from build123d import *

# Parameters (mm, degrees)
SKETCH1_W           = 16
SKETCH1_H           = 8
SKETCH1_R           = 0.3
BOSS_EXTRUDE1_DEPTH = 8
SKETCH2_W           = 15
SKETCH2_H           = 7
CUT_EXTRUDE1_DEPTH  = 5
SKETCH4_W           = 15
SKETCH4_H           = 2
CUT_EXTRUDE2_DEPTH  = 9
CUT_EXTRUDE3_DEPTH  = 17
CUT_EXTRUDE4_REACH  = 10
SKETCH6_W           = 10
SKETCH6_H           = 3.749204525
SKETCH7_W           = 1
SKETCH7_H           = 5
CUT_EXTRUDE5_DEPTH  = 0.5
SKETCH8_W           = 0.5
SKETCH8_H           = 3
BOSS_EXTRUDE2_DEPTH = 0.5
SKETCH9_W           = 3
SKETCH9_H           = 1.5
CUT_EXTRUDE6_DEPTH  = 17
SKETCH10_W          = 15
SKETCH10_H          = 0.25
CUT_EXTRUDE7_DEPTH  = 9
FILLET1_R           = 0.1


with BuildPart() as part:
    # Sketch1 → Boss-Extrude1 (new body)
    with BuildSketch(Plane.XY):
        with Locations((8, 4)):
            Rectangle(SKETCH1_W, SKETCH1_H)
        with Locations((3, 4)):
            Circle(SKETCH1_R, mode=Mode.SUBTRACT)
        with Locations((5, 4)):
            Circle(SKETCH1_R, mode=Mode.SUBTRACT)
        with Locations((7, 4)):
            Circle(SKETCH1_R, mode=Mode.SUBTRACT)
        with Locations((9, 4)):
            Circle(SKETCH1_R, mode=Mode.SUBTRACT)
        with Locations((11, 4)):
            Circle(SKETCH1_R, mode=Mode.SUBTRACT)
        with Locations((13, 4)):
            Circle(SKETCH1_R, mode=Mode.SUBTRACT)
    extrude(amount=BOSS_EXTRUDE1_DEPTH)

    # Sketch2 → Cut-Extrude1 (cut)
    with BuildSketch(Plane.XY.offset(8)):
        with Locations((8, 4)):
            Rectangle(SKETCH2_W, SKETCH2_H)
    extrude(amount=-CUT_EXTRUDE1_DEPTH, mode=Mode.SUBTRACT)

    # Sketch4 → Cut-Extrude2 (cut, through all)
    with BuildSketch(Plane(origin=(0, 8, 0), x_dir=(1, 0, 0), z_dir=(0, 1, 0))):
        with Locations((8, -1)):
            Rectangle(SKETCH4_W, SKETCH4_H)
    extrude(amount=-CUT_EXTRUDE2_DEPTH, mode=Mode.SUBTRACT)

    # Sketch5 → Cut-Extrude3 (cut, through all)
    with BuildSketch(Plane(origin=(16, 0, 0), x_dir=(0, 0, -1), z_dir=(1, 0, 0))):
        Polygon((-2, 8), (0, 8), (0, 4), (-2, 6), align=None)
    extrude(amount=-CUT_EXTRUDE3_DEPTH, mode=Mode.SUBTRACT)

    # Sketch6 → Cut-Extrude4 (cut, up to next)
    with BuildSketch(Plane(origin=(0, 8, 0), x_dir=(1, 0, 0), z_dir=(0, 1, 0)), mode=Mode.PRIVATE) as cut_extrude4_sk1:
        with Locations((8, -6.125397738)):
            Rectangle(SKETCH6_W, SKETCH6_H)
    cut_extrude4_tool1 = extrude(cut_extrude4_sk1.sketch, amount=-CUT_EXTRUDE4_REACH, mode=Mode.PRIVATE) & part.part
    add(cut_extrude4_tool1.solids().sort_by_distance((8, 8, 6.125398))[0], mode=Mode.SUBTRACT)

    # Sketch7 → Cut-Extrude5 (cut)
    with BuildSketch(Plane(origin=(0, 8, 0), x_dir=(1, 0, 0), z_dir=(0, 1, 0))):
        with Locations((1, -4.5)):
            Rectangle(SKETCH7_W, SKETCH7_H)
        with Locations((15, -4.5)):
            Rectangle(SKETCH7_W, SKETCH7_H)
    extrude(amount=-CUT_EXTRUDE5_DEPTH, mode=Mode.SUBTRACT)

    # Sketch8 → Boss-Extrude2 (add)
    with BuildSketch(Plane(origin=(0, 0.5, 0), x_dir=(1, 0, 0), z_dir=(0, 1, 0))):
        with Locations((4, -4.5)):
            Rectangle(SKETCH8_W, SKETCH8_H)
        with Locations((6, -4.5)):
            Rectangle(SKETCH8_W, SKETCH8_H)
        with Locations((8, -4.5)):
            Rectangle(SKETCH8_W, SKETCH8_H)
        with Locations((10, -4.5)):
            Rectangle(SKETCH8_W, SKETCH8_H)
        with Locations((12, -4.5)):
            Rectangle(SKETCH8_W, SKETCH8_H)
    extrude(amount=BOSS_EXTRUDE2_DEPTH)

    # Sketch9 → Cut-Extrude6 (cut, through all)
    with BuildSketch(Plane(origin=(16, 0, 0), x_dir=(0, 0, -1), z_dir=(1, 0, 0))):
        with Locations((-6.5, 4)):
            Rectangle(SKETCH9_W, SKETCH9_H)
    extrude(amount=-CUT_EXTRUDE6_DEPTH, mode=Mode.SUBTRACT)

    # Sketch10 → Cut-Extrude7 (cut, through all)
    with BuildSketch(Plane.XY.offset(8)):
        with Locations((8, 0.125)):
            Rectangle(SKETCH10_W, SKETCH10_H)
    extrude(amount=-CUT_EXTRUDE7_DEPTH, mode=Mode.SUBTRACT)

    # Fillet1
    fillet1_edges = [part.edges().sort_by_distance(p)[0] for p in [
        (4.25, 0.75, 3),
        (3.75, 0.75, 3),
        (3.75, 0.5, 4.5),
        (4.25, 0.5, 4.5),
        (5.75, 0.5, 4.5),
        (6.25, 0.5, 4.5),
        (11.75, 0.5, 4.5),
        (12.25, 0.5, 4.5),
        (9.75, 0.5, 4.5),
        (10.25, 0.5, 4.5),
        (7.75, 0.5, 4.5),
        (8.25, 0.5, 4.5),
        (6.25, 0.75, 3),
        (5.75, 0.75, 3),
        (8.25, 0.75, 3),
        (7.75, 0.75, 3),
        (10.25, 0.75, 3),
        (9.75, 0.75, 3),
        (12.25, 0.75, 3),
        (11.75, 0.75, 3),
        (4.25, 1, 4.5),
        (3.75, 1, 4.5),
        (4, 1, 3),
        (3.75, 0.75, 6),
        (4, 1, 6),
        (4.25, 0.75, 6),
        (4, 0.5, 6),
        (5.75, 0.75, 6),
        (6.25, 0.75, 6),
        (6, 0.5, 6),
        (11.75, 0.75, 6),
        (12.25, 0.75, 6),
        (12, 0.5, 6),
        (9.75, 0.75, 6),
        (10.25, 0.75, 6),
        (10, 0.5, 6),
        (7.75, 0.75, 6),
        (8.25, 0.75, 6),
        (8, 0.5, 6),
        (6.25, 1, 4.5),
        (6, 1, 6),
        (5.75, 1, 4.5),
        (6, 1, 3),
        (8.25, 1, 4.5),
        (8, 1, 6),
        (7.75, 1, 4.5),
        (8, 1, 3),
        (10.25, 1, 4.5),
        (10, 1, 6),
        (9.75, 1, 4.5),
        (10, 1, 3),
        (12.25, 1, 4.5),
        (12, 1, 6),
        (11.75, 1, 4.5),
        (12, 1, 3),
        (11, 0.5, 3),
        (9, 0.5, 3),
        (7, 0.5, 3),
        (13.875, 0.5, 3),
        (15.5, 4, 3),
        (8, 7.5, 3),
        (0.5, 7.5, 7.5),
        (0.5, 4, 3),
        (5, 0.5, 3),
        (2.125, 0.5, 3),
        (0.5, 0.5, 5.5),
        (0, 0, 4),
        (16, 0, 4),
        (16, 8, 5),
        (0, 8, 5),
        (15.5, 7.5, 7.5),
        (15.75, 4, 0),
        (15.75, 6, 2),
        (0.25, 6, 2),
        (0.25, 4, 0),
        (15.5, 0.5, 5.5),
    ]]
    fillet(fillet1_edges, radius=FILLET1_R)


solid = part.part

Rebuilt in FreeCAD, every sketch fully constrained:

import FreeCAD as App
import Part
import Sketcher

V = App.Vector
Q = App.Units.Quantity


def edges_at(feature, points):
    """Names of the edges that pass closest to the given points."""
    edges = feature.Shape.Edges
    near = lambda p: min(range(len(edges)), key=lambda i: edges[i].distToShape(Part.Vertex(*p))[0])
    return sorted({f"Edge{near(p) + 1}" for p in points})

doc = App.newDocument("Part")
body = doc.addObject("PartDesign::Body", "Body")

# Sketch on XY plane
sketch1 = body.newObject("Sketcher::SketchObject", "Sketch")
sketch1.AttachmentSupport = (doc.getObject("XY_Plane"), [""])
sketch1.MapMode = "FlatFace"
sketch1.addGeometry([
    Part.LineSegment(V(0, 8, 0), V(0, 0, 0)),  # 0
    Part.LineSegment(V(0, 0, 0), V(16, 0, 0)),  # 1
    Part.LineSegment(V(16, 0, 0), V(16, 8, 0)),  # 2
    Part.LineSegment(V(16, 8, 0), V(0, 8, 0)),  # 3
    Part.Circle(V(3, 4, 0), V(0, 0, 1), 0.3),  # 4
    Part.Circle(V(5, 4, 0), V(0, 0, 1), 0.3),  # 5
    Part.Circle(V(7, 4, 0), V(0, 0, 1), 0.3),  # 6
    Part.Circle(V(9, 4, 0), V(0, 0, 1), 0.3),  # 7
    Part.Circle(V(11, 4, 0), V(0, 0, 1), 0.3),  # 8
    Part.Circle(V(13, 4, 0), V(0, 0, 1), 0.3),  # 9
], False)
sketch1.addConstraint([
    Sketcher.Constraint("Coincident", 0, 2, 1, 1),
    Sketcher.Constraint("Coincident", 1, 2, 2, 1),
    Sketcher.Constraint("Coincident", 2, 2, 3, 1),
    Sketcher.Constraint("Coincident", 3, 2, 0, 1),
    Sketcher.Constraint("Vertical", 0),
    Sketcher.Constraint("Horizontal", 1),
    Sketcher.Constraint("Vertical", 2),
    Sketcher.Constraint("Horizontal", 3),
    Sketcher.Constraint("Coincident", 0, 2, -1, 1),
    Sketcher.Constraint("Equal", 4, 5),
    Sketcher.Constraint("Equal", 5, 6),
    Sketcher.Constraint("Equal", 6, 7),
    Sketcher.Constraint("Equal", 7, 8),
    Sketcher.Constraint("Equal", 8, 9),
    Sketcher.Constraint("Horizontal", 4, 3, 5, 3),
    Sketcher.Constraint("Horizontal", 5, 3, 6, 3),
    Sketcher.Constraint("Horizontal", 6, 3, 7, 3),
    Sketcher.Constraint("Horizontal", 7, 3, 8, 3),
    Sketcher.Constraint("Horizontal", 8, 3, 9, 3),
    Sketcher.Constraint("Diameter", 4, Q("0.6 mm")),
    Sketcher.Constraint("DistanceX", 1, 1, 1, 2, Q("16 mm")),
    Sketcher.Constraint("DistanceY", 0, 2, 0, 1, Q("8 mm")),
    Sketcher.Constraint("DistanceX", -1, 1, 4, 3, Q("3 mm")),
    Sketcher.Constraint("DistanceY", -1, 1, 4, 3, Q("4 mm")),
    Sketcher.Constraint("DistanceX", -1, 1, 5, 3, Q("5 mm")),
    Sketcher.Constraint("DistanceX", -1, 1, 6, 3, Q("7 mm")),
    Sketcher.Constraint("DistanceX", -1, 1, 7, 3, Q("9 mm")),
    Sketcher.Constraint("DistanceX", -1, 1, 8, 3, Q("11 mm")),
    Sketcher.Constraint("DistanceX", -1, 1, 9, 3, Q("13 mm")),
])
pad1 = body.newObject("PartDesign::Pad", "Pad")
pad1.Profile = sketch1
pad1.Length = 8

# Sketch on XY plane
sketch2 = body.newObject("Sketcher::SketchObject", "Sketch001")
sketch2.AttachmentSupport = (doc.getObject("XY_Plane"), [""])
sketch2.MapMode = "FlatFace"
sketch2.AttachmentOffset = App.Placement(V(0, 0, 8), App.Rotation())
sketch2.addGeometry([
    Part.LineSegment(V(0, 8, 0), V(0, 0, 0)),
    Part.LineSegment(V(0, 0, 0), V(16, 0, 0)),
    Part.LineSegment(V(16, 0, 0), V(16, 8, 0)),
    Part.LineSegment(V(16, 8, 0), V(0, 8, 0)),
], False)
sketch2.addConstraint([
    Sketcher.Constraint("Coincident", 0, 2, 1, 1),
    Sketcher.Constraint("Coincident", 1, 2, 2, 1),
    Sketcher.Constraint("Coincident", 2, 2, 3, 1),
    Sketcher.Constraint("Coincident", 3, 2, 0, 1),
    Sketcher.Constraint("Vertical", 0),
    Sketcher.Constraint("Horizontal", 1),
    Sketcher.Constraint("Vertical", 2),
    Sketcher.Constraint("Horizontal", 3),
    Sketcher.Constraint("DistanceX", 1, 1, 1, 2, Q("15 mm")),
    Sketcher.Constraint("DistanceY", 0, 2, 0, 1, Q("7 mm")),
    Sketcher.Constraint("DistanceX", -1, 1, 0, 2, Q("0.5 mm")),
    Sketcher.Constraint("DistanceY", -1, 1, 0, 2, Q("0.5 mm")),
])
pocket1 = body.newObject("PartDesign::Pocket", "Pocket")
pocket1.Profile = sketch2
pocket1.Length = 5

# Sketch on XZ plane
sketch3 = body.newObject("Sketcher::SketchObject", "Sketch002")
sketch3.AttachmentSupport = (doc.getObject("XZ_Plane"), [""])
sketch3.MapMode = "FlatFace"
sketch3.AttachmentOffset = App.Placement(V(0, 0, -8), App.Rotation())
sketch3.addGeometry([
    Part.LineSegment(V(0.5, 0, 0), V(0.5, 2, 0)),
    Part.LineSegment(V(0.5, 2, 0), V(15.5, 2, 0)),
    Part.LineSegment(V(15.5, 2, 0), V(15.5, 0, 0)),
    Part.LineSegment(V(15.5, 0, 0), V(0.5, 0, 0)),
], False)
sketch3.addConstraint([
    Sketcher.Constraint("Coincident", 0, 2, 1, 1),
    Sketcher.Constraint("Coincident", 1, 2, 2, 1),
    Sketcher.Constraint("Coincident", 2, 2, 3, 1),
    Sketcher.Constraint("Coincident", 3, 2, 0, 1),
    Sketcher.Constraint("Vertical", 0),
    Sketcher.Constraint("Horizontal", 1),
    Sketcher.Constraint("Vertical", 2),
    Sketcher.Constraint("Horizontal", 3),
    Sketcher.Constraint("PointOnObject", 2, 2, -1),
    Sketcher.Constraint("DistanceX", 1, 1, 1, 2, Q("15 mm")),
    Sketcher.Constraint("DistanceY", 0, 1, 0, 2, Q("2 mm")),
    Sketcher.Constraint("DistanceX", -1, 1, 0, 2, Q("0.5 mm")),
])
pocket2 = body.newObject("PartDesign::Pocket", "Pocket001")
pocket2.Profile = sketch3
pocket2.Type = "ThroughAll"
pocket2.Reversed = True

# Sketch on YZ plane
sketch4 = body.newObject("Sketcher::SketchObject", "Sketch003")
sketch4.AttachmentSupport = (doc.getObject("YZ_Plane"), [""])
sketch4.MapMode = "FlatFace"
sketch4.AttachmentOffset = App.Placement(V(0, 0, 16), App.Rotation())
sketch4.addGeometry([
    Part.LineSegment(V(8, 0, 0), V(8, 2, 0)),
    Part.LineSegment(V(8, 2, 0), V(6, 2, 0)),
    Part.LineSegment(V(6, 2, 0), V(4, 0, 0)),
    Part.LineSegment(V(4, 0, 0), V(8, 0, 0)),
], False)
sketch4.addConstraint([
    Sketcher.Constraint("Coincident", 0, 2, 1, 1),
    Sketcher.Constraint("Coincident", 1, 2, 2, 1),
    Sketcher.Constraint("Coincident", 2, 2, 3, 1),
    Sketcher.Constraint("Coincident", 3, 2, 0, 1),
    Sketcher.Constraint("Vertical", 0),
    Sketcher.Constraint("Horizontal", 1),
    Sketcher.Constraint("Horizontal", 3),
    Sketcher.Constraint("PointOnObject", 2, 2, -1),
    Sketcher.Constraint("Equal", 1, 0),
    Sketcher.Constraint("DistanceX", 1, 2, 1, 1, Q("2 mm")),
    Sketcher.Constraint("DistanceX", 3, 1, 3, 2, Q("4 mm")),
    Sketcher.Constraint("DistanceX", -1, 1, 0, 2, Q("8 mm")),
])
pocket3 = body.newObject("PartDesign::Pocket", "Pocket002")
pocket3.Profile = sketch4
pocket3.Type = "ThroughAll"

# Sketch on XZ plane
sketch5 = body.newObject("Sketcher::SketchObject", "Sketch004")
sketch5.AttachmentSupport = (doc.getObject("XZ_Plane"), [""])
sketch5.MapMode = "FlatFace"
sketch5.AttachmentOffset = App.Placement(V(0, 0, -8), App.Rotation())
sketch5.addGeometry([
    Part.LineSegment(V(3, 4.3, 0), V(3, 8, 0)),
    Part.LineSegment(V(3, 8, 0), V(13, 8, 0)),
    Part.LineSegment(V(13, 8, 0), V(13, 4.3, 0)),
    Part.LineSegment(V(13, 4.3, 0), V(3, 4.3, 0)),
], False)
sketch5.addConstraint([
    Sketcher.Constraint("Coincident", 0, 2, 1, 1),
    Sketcher.Constraint("Coincident", 1, 2, 2, 1),
    Sketcher.Constraint("Coincident", 2, 2, 3, 1),
    Sketcher.Constraint("Coincident", 3, 2, 0, 1),
    Sketcher.Constraint("Vertical", 0),
    Sketcher.Constraint("Horizontal", 1),
    Sketcher.Constraint("Vertical", 2),
    Sketcher.Constraint("Horizontal", 3),
    Sketcher.Constraint("DistanceX", 1, 1, 1, 2, Q("10 mm")),
    Sketcher.Constraint("DistanceX", -1, 1, 0, 2, Q("3 mm")),
    Sketcher.Constraint("DistanceY", -1, 1, 0, 2, Q("8 mm")),
    Sketcher.Constraint("DistanceY", 0, 1, 0, 2, Q("3.749205 mm")),
])
pocket4 = body.newObject("PartDesign::Pocket", "Pocket003")
pocket4.Profile = sketch5
pocket4.Type = "UpToFirst"
pocket4.Reversed = True

# Sketch on XZ plane
sketch6 = body.newObject("Sketcher::SketchObject", "Sketch005")
sketch6.AttachmentSupport = (doc.getObject("XZ_Plane"), [""])
sketch6.MapMode = "FlatFace"
sketch6.AttachmentOffset = App.Placement(V(0, 0, -8), App.Rotation())
sketch6.addGeometry([
    Part.LineSegment(V(0.5, 2, 0), V(0.5, 7, 0)),  # 0
    Part.LineSegment(V(0.5, 7, 0), V(1.5, 7, 0)),  # 1
    Part.LineSegment(V(1.5, 7, 0), V(1.5, 2, 0)),  # 2
    Part.LineSegment(V(1.5, 2, 0), V(0.5, 2, 0)),  # 3
    Part.LineSegment(V(14.5, 2, 0), V(14.5, 7, 0)),  # 4
    Part.LineSegment(V(14.5, 7, 0), V(15.5, 7, 0)),  # 5
    Part.LineSegment(V(15.5, 7, 0), V(15.5, 2, 0)),  # 6
    Part.LineSegment(V(15.5, 2, 0), V(14.5, 2, 0)),  # 7
], False)
sketch6.addConstraint([
    Sketcher.Constraint("Coincident", 0, 2, 1, 1),
    Sketcher.Constraint("Coincident", 1, 2, 2, 1),
    Sketcher.Constraint("Coincident", 2, 2, 3, 1),
    Sketcher.Constraint("Coincident", 3, 2, 0, 1),
    Sketcher.Constraint("Coincident", 4, 2, 5, 1),
    Sketcher.Constraint("Coincident", 5, 2, 6, 1),
    Sketcher.Constraint("Coincident", 6, 2, 7, 1),
    Sketcher.Constraint("Coincident", 7, 2, 4, 1),
    Sketcher.Constraint("Vertical", 0),
    Sketcher.Constraint("Horizontal", 1),
    Sketcher.Constraint("Vertical", 2),
    Sketcher.Constraint("Horizontal", 3),
    Sketcher.Constraint("Vertical", 4),
    Sketcher.Constraint("Horizontal", 5),
    Sketcher.Constraint("Vertical", 6),
    Sketcher.Constraint("Horizontal", 7),
    Sketcher.Constraint("Horizontal", 1, 2, 4, 2),
    Sketcher.Constraint("Horizontal", 3, 2, 6, 2),
    Sketcher.Constraint("Equal", 3, 5),
    Sketcher.Constraint("DistanceX", 1, 1, 1, 2, Q("1 mm")),
    Sketcher.Constraint("DistanceY", 0, 1, 0, 2, Q("5 mm")),
    Sketcher.Constraint("DistanceY", -1, 1, 0, 2, Q("7 mm")),
    Sketcher.Constraint("DistanceX", 1, 2, 4, 2, Q("13 mm")),
    Sketcher.Constraint("DistanceX", -1, 1, 0, 2, Q("0.5 mm")),
])
pocket5 = body.newObject("PartDesign::Pocket", "Pocket004")
pocket5.Profile = sketch6
pocket5.Length = 0.5
pocket5.Reversed = True

# Sketch on XZ plane
sketch7 = body.newObject("Sketcher::SketchObject", "Sketch006")
sketch7.AttachmentSupport = (doc.getObject("XZ_Plane"), [""])
sketch7.MapMode = "FlatFace"
sketch7.AttachmentOffset = App.Placement(V(0, 0, -0.5), App.Rotation())
sketch7.addGeometry([
    Part.LineSegment(V(3.8, 3, 0), V(3.8, 6, 0)),  # 0
    Part.LineSegment(V(3.8, 6, 0), V(4.2, 6, 0)),  # 1
    Part.LineSegment(V(4.2, 6, 0), V(4.2, 3, 0)),  # 2
    Part.LineSegment(V(4.2, 3, 0), V(3.8, 3, 0)),  # 3
    Part.LineSegment(V(5.8, 3, 0), V(5.8, 6, 0)),  # 4
    Part.LineSegment(V(5.8, 6, 0), V(6.2, 6, 0)),  # 5
    Part.LineSegment(V(6.2, 6, 0), V(6.2, 3, 0)),  # 6
    Part.LineSegment(V(6.2, 3, 0), V(5.8, 3, 0)),  # 7
    Part.LineSegment(V(7.8, 3, 0), V(7.8, 6, 0)),  # 8
    Part.LineSegment(V(7.8, 6, 0), V(8.2, 6, 0)),  # 9
    Part.LineSegment(V(8.2, 6, 0), V(8.2, 3, 0)),  # 10
    Part.LineSegment(V(8.2, 3, 0), V(7.8, 3, 0)),  # 11
    Part.LineSegment(V(9.8, 3, 0), V(9.8, 6, 0)),  # 12
    Part.LineSegment(V(9.8, 6, 0), V(10.2, 6, 0)),  # 13
    Part.LineSegment(V(10.2, 6, 0), V(10.2, 3, 0)),  # 14
    Part.LineSegment(V(10.2, 3, 0), V(9.8, 3, 0)),  # 15
    Part.LineSegment(V(11.8, 3, 0), V(11.8, 6, 0)),  # 16
    Part.LineSegment(V(11.8, 6, 0), V(12.2, 6, 0)),  # 17
    Part.LineSegment(V(12.2, 6, 0), V(12.2, 3, 0)),  # 18
    Part.LineSegment(V(12.2, 3, 0), V(11.8, 3, 0)),  # 19
], False)
sketch7.addConstraint([
    Sketcher.Constraint("Coincident", 0, 2, 1, 1),
    Sketcher.Constraint("Coincident", 1, 2, 2, 1),
    Sketcher.Constraint("Coincident", 2, 2, 3, 1),
    Sketcher.Constraint("Coincident", 3, 2, 0, 1),
    Sketcher.Constraint("Coincident", 4, 2, 5, 1),
    Sketcher.Constraint("Coincident", 5, 2, 6, 1),
    Sketcher.Constraint("Coincident", 6, 2, 7, 1),
    Sketcher.Constraint("Coincident", 7, 2, 4, 1),
    Sketcher.Constraint("Coincident", 8, 2, 9, 1),
    Sketcher.Constraint("Coincident", 9, 2, 10, 1),
    Sketcher.Constraint("Coincident", 10, 2, 11, 1),
    Sketcher.Constraint("Coincident", 11, 2, 8, 1),
    Sketcher.Constraint("Coincident", 12, 2, 13, 1),
    Sketcher.Constraint("Coincident", 13, 2, 14, 1),
    Sketcher.Constraint("Coincident", 14, 2, 15, 1),
    Sketcher.Constraint("Coincident", 15, 2, 12, 1),
    Sketcher.Constraint("Coincident", 16, 2, 17, 1),
    Sketcher.Constraint("Coincident", 17, 2, 18, 1),
    Sketcher.Constraint("Coincident", 18, 2, 19, 1),
    Sketcher.Constraint("Coincident", 19, 2, 16, 1),
    Sketcher.Constraint("Vertical", 0),
    Sketcher.Constraint("Horizontal", 1),
    Sketcher.Constraint("Vertical", 2),
    Sketcher.Constraint("Horizontal", 3),
    Sketcher.Constraint("Vertical", 4),
    Sketcher.Constraint("Horizontal", 5),
    Sketcher.Constraint("Vertical", 6),
    Sketcher.Constraint("Horizontal", 7),
    Sketcher.Constraint("Vertical", 8),
    Sketcher.Constraint("Horizontal", 9),
    Sketcher.Constraint("Vertical", 10),
    Sketcher.Constraint("Horizontal", 11),
    Sketcher.Constraint("Vertical", 12),
    Sketcher.Constraint("Horizontal", 13),
    Sketcher.Constraint("Vertical", 14),
    Sketcher.Constraint("Horizontal", 15),
    Sketcher.Constraint("Vertical", 16),
    Sketcher.Constraint("Horizontal", 17),
    Sketcher.Constraint("Vertical", 18),
    Sketcher.Constraint("Horizontal", 19),
    Sketcher.Constraint("Horizontal", 1, 2, 4, 2),
    Sketcher.Constraint("Horizontal", 3, 2, 6, 2),
    Sketcher.Constraint("Horizontal", 5, 2, 8, 2),
    Sketcher.Constraint("Horizontal", 7, 2, 10, 2),
    Sketcher.Constraint("Horizontal", 9, 2, 12, 2),
    Sketcher.Constraint("Horizontal", 11, 2, 14, 2),
    Sketcher.Constraint("Horizontal", 13, 2, 16, 2),
    Sketcher.Constraint("Horizontal", 15, 2, 18, 2),
    Sketcher.Constraint("Equal", 3, 5),
    Sketcher.Constraint("Equal", 7, 9),
    Sketcher.Constraint("Equal", 11, 13),
    Sketcher.Constraint("Equal", 15, 17),
    Sketcher.Constraint("DistanceY", 0, 1, 0, 2, Q("3 mm")),
    Sketcher.Constraint("DistanceX", 1, 1, 1, 2, Q("0.5 mm")),
    Sketcher.Constraint("DistanceY", -1, 1, 0, 2, Q("6 mm")),
    Sketcher.Constraint("DistanceX", 0, 2, 4, 2, Q("2 mm")),
    Sketcher.Constraint("DistanceX", 4, 2, 8, 2, Q("2 mm")),
    Sketcher.Constraint("DistanceX", 8, 2, 12, 2, Q("2 mm")),
    Sketcher.Constraint("DistanceX", 12, 2, 16, 2, Q("2 mm")),
    Sketcher.Constraint("DistanceX", -1, 1, 0, 2, Q("3.75 mm")),
])
pad2 = body.newObject("PartDesign::Pad", "Pad001")
pad2.Profile = sketch7
pad2.Length = 0.5
pad2.Reversed = True

# Sketch on YZ plane
sketch8 = body.newObject("Sketcher::SketchObject", "Sketch007")
sketch8.AttachmentSupport = (doc.getObject("YZ_Plane"), [""])
sketch8.MapMode = "FlatFace"
sketch8.AttachmentOffset = App.Placement(V(0, 0, 16), App.Rotation())
sketch8.addGeometry([
    Part.LineSegment(V(4.8, 8, 0), V(3.2, 8, 0)),
    Part.LineSegment(V(3.2, 8, 0), V(3.2, 5, 0)),
    Part.LineSegment(V(3.2, 5, 0), V(4.8, 5, 0)),
    Part.LineSegment(V(4.8, 5, 0), V(4.8, 8, 0)),
], False)
sketch8.addConstraint([
    Sketcher.Constraint("Coincident", 0, 2, 1, 1),
    Sketcher.Constraint("Coincident", 1, 2, 2, 1),
    Sketcher.Constraint("Coincident", 2, 2, 3, 1),
    Sketcher.Constraint("Coincident", 3, 2, 0, 1),
    Sketcher.Constraint("Horizontal", 0),
    Sketcher.Constraint("Vertical", 1),
    Sketcher.Constraint("Horizontal", 2),
    Sketcher.Constraint("Vertical", 3),
    Sketcher.Constraint("DistanceY", 1, 2, 1, 1, Q("3 mm")),
    Sketcher.Constraint("DistanceX", 0, 2, 0, 1, Q("1.5 mm")),
    Sketcher.Constraint("DistanceY", -1, 1, 0, 2, Q("8 mm")),
    Sketcher.Constraint("DistanceX", -1, 1, 0, 2, Q("3.25 mm")),
])
pocket6 = body.newObject("PartDesign::Pocket", "Pocket005")
pocket6.Profile = sketch8
pocket6.Type = "ThroughAll"

# Sketch on XY plane
sketch9 = body.newObject("Sketcher::SketchObject", "Sketch008")
sketch9.AttachmentSupport = (doc.getObject("XY_Plane"), [""])
sketch9.MapMode = "FlatFace"
sketch9.AttachmentOffset = App.Placement(V(0, 0, 8), App.Rotation())
sketch9.addGeometry([
    Part.LineSegment(V(0.5, 0.25, 0), V(0.5, 0, 0)),
    Part.LineSegment(V(0.5, 0, 0), V(15.5, 0, 0)),
    Part.LineSegment(V(15.5, 0, 0), V(15.5, 0.25, 0)),
    Part.LineSegment(V(15.5, 0.25, 0), V(0.5, 0.25, 0)),
], False)
sketch9.addConstraint([
    Sketcher.Constraint("Coincident", 0, 2, 1, 1),
    Sketcher.Constraint("Coincident", 1, 2, 2, 1),
    Sketcher.Constraint("Coincident", 2, 2, 3, 1),
    Sketcher.Constraint("Coincident", 3, 2, 0, 1),
    Sketcher.Constraint("Vertical", 0),
    Sketcher.Constraint("Horizontal", 1),
    Sketcher.Constraint("Vertical", 2),
    Sketcher.Constraint("Horizontal", 3),
    Sketcher.Constraint("PointOnObject", 0, 2, -1),
    Sketcher.Constraint("DistanceX", 1, 1, 1, 2, Q("15 mm")),
    Sketcher.Constraint("DistanceY", 0, 2, 0, 1, Q("0.25 mm")),
    Sketcher.Constraint("DistanceX", -1, 1, 0, 2, Q("0.5 mm")),
])
pocket7 = body.newObject("PartDesign::Pocket", "Pocket006")
pocket7.Profile = sketch9
pocket7.Type = "ThroughAll"
doc.recompute()

fillet = body.newObject("PartDesign::Fillet", "Fillet")
fillet.Base = (pocket7, edges_at(pocket7, [
    (4.25, 0.75, 3),
    (3.75, 0.75, 3),
    (3.75, 0.5, 4.5),
    (4.25, 0.5, 4.5),
    (5.75, 0.5, 4.5),
    (6.25, 0.5, 4.5),
    (11.75, 0.5, 4.5),
    (12.25, 0.5, 4.5),
    (9.75, 0.5, 4.5),
    (10.25, 0.5, 4.5),
    (7.75, 0.5, 4.5),
    (8.25, 0.5, 4.5),
    (6.25, 0.75, 3),
    (5.75, 0.75, 3),
    (8.25, 0.75, 3),
    (7.75, 0.75, 3),
    (10.25, 0.75, 3),
    (9.75, 0.75, 3),
    (12.25, 0.75, 3),
    (11.75, 0.75, 3),
    (4.25, 1, 4.5),
    (3.75, 1, 4.5),
    (4, 1, 3),
    (3.75, 0.75, 6),
    (4, 1, 6),
    (4.25, 0.75, 6),
    (4, 0.5, 6),
    (5.75, 0.75, 6),
    (6.25, 0.75, 6),
    (6, 0.5, 6),
    (11.75, 0.75, 6),
    (12.25, 0.75, 6),
    (12, 0.5, 6),
    (9.75, 0.75, 6),
    (10.25, 0.75, 6),
    (10, 0.5, 6),
    (7.75, 0.75, 6),
    (8.25, 0.75, 6),
    (8, 0.5, 6),
    (6.25, 1, 4.5),
    (6, 1, 6),
    (5.75, 1, 4.5),
    (6, 1, 3),
    (8.25, 1, 4.5),
    (8, 1, 6),
    (7.75, 1, 4.5),
    (8, 1, 3),
    (10.25, 1, 4.5),
    (10, 1, 6),
    (9.75, 1, 4.5),
    (10, 1, 3),
    (12.25, 1, 4.5),
    (12, 1, 6),
    (11.75, 1, 4.5),
    (12, 1, 3),
    (11, 0.5, 3),
    (9, 0.5, 3),
    (7, 0.5, 3),
    (13.875, 0.5, 3),
    (15.5, 4, 3),
    (8, 7.5, 3),
    (0.5, 7.5, 7.5),
    (0.5, 4, 3),
    (5, 0.5, 3),
    (2.125, 0.5, 3),
    (0.5, 0.5, 5.5),
    (0, 0, 4),
    (16, 0, 4),
    (16, 8, 5),
    (0, 8, 5),
    (15.5, 7.5, 7.5),
    (15.75, 4, 0),
    (15.75, 6, 2),
    (0.25, 6, 2),
    (0.25, 4, 0),
    (15.5, 0.5, 5.5),
]))
fillet.Radius = 0.1

doc.recompute()
